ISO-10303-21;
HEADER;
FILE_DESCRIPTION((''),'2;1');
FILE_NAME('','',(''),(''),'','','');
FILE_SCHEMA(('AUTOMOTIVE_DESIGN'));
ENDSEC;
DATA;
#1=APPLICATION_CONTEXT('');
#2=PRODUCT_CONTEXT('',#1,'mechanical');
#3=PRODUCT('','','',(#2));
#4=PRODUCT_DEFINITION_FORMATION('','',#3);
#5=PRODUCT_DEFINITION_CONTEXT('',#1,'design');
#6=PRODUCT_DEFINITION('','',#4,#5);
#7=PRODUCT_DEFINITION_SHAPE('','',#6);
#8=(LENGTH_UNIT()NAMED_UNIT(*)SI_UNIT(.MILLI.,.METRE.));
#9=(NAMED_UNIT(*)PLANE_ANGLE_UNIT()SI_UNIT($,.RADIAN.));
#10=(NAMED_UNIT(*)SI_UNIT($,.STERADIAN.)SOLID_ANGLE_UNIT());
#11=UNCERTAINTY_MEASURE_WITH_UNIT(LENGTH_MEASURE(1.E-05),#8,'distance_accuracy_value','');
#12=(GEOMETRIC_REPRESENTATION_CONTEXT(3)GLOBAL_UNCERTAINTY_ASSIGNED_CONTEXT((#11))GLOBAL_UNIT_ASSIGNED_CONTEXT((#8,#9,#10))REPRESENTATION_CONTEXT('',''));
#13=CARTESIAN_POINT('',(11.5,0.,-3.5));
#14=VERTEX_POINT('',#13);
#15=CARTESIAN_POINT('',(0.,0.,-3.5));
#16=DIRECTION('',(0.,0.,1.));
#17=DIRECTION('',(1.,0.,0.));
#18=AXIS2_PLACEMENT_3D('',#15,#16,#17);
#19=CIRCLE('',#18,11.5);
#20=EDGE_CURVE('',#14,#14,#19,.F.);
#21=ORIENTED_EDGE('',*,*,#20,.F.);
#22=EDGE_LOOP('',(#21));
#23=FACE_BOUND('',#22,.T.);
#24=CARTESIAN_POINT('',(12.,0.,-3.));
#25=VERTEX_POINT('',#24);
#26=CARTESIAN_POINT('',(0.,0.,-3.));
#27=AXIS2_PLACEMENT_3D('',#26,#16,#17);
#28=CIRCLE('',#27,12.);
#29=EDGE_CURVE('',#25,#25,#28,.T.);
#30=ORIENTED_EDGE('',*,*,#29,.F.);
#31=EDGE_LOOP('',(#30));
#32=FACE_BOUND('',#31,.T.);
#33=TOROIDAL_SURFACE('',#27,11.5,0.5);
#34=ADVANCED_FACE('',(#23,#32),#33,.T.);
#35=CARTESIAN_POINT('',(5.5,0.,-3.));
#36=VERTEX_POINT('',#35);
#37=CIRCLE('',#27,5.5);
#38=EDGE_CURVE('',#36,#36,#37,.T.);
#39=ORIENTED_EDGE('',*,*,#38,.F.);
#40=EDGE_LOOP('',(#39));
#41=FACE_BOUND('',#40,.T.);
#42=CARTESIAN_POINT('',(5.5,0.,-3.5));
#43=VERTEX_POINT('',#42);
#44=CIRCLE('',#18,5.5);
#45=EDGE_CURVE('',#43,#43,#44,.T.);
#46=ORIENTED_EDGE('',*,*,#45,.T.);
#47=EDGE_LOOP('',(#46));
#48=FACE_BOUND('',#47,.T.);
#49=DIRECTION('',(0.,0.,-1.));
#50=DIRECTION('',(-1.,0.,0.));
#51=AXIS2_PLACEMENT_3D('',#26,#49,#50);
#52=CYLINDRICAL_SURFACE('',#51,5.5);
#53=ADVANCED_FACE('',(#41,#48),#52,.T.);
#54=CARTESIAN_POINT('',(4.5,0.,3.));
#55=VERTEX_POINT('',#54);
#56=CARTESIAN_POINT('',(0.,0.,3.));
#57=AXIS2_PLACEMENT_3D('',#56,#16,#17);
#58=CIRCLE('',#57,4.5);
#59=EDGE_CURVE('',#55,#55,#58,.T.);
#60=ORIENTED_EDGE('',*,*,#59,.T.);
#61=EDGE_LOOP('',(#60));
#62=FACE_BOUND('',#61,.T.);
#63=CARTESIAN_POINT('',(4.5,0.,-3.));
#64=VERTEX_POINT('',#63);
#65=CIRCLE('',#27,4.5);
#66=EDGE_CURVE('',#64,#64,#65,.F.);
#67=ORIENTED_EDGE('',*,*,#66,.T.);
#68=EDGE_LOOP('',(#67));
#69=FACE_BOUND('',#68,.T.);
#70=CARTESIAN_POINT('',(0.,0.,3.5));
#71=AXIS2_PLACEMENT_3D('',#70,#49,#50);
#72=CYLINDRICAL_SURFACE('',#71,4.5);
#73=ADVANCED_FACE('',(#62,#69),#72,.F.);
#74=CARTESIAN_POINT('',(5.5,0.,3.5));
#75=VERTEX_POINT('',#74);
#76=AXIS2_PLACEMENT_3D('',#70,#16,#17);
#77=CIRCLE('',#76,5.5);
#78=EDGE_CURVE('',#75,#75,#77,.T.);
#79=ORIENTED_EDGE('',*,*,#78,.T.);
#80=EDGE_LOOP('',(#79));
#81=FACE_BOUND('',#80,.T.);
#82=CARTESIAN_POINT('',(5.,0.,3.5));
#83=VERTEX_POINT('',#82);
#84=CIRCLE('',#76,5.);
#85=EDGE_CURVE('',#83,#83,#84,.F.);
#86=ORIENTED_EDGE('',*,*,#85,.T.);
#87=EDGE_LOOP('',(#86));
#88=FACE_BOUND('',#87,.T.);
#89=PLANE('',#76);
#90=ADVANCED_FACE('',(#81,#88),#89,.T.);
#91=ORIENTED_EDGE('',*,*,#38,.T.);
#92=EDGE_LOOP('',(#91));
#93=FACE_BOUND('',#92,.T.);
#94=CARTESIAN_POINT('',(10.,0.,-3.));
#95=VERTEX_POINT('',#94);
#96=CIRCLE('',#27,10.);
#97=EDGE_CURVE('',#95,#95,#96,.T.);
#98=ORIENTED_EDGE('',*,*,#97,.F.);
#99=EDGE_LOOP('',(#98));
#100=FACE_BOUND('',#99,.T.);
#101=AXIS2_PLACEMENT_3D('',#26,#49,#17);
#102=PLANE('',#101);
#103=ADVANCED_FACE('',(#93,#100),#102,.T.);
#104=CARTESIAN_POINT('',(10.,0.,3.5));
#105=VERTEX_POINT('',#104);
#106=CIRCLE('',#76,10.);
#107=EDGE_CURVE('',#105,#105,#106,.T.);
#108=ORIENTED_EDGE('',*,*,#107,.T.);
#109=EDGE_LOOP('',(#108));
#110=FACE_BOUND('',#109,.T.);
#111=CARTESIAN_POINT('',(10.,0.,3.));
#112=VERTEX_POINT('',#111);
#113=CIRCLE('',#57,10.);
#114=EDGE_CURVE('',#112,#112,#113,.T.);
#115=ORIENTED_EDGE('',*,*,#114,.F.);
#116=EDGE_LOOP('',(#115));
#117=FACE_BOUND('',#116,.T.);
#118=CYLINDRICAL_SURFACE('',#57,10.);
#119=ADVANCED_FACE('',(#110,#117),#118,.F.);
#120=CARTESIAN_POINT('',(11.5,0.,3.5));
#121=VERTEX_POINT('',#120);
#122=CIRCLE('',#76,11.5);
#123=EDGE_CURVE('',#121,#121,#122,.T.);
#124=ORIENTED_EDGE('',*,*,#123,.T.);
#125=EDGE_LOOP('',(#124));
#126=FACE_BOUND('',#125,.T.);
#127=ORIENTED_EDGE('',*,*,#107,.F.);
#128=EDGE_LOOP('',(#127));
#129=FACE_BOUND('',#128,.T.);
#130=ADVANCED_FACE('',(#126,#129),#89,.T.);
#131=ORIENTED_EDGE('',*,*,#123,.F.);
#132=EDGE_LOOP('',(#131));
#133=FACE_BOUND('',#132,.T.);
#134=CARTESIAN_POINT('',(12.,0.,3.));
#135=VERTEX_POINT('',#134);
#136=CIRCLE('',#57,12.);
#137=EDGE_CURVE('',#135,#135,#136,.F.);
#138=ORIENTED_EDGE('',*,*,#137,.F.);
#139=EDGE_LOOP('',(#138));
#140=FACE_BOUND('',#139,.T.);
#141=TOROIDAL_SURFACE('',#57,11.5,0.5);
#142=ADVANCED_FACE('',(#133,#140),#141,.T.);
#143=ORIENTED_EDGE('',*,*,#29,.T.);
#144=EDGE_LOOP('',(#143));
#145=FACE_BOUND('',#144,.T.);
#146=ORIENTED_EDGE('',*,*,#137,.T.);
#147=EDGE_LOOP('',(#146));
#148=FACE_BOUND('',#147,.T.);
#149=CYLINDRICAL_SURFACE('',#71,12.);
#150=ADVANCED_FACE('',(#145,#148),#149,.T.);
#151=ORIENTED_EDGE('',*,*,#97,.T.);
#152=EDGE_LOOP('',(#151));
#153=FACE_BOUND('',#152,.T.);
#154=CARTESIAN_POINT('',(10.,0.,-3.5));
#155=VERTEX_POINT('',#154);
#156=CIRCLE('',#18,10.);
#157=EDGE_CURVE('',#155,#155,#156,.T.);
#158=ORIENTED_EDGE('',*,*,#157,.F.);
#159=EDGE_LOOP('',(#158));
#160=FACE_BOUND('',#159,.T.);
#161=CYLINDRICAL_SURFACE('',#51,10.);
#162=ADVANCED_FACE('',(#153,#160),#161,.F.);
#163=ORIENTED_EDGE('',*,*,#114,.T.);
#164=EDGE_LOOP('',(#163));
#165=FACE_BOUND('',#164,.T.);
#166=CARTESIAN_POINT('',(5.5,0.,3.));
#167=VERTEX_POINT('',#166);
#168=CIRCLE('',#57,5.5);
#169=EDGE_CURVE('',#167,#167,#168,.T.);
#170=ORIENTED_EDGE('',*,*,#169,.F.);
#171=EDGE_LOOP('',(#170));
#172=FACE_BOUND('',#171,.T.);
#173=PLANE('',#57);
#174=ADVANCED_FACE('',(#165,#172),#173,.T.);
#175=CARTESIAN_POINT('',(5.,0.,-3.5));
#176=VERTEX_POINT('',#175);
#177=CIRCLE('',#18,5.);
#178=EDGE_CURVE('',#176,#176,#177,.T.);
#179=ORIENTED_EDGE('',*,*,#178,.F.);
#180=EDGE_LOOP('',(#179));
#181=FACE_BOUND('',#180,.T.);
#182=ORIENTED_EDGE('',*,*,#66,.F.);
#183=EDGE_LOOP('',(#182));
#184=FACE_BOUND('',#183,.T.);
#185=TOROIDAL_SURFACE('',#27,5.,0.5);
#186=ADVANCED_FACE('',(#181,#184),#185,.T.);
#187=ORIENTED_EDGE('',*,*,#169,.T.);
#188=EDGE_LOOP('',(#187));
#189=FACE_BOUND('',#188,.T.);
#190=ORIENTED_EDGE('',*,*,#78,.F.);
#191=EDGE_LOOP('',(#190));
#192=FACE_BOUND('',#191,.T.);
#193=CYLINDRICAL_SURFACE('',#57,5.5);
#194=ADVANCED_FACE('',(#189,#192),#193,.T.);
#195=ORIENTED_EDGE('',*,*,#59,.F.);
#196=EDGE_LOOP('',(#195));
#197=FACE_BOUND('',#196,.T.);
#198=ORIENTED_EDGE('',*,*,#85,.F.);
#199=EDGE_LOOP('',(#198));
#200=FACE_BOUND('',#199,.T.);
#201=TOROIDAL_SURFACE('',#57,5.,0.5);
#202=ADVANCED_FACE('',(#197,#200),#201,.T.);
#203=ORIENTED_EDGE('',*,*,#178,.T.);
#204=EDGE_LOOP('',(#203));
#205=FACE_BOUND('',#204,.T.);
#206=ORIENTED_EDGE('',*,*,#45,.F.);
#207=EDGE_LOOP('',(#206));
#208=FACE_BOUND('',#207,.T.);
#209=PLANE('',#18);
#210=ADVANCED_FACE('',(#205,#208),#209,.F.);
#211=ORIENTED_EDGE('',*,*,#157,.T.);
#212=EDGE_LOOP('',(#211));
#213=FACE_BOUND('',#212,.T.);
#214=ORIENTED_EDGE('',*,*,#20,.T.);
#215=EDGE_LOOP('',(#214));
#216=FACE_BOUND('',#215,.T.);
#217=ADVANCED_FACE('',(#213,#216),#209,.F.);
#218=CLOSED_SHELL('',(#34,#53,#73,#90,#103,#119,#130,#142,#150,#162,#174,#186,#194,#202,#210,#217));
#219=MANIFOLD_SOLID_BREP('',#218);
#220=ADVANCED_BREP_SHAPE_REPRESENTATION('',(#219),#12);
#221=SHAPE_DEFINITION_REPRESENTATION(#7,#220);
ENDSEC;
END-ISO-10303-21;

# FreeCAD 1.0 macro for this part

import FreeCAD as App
import Part
import Sketcher
from FreeCAD import Vector
Q = App.Units.Quantity


def edges_at(feature, points):
    """Names of the edges that pass closest to the given points."""
    edges = feature.Shape.Edges
    near = lambda p: min(range(len(edges)), key=lambda i: edges[i].distToShape(Part.Vertex(*p))[0])
    return sorted({f"Edge{near(p) + 1}" for p in points})

doc = App.newDocument("Part")
body = doc.addObject("PartDesign::Body", "Body")

sketch1 = body.newObject("Sketcher::SketchObject", "Sketch")
sketch1.AttachmentSupport = (doc.getObject("XY_Plane"), [""])
sketch1.MapMode = "FlatFace"
sketch1.addGeometry(Part.Circle(Vector(0, 0, 0), Vector(0, 0, 1), 12), False)
sketch1.addGeometry(Part.Circle(Vector(0, 0, 0), Vector(0, 0, 1), 4.5), False)
sketch1.addConstraint(Sketcher.Constraint("Coincident", 0, 3, -1, 1))
sketch1.addConstraint(Sketcher.Constraint("Coincident", 1, 3, -1, 1))
sketch1.addConstraint(Sketcher.Constraint("Diameter", 0, Q("24 mm")))
sketch1.addConstraint(Sketcher.Constraint("Diameter", 1, Q("9 mm")))
pad1 = body.newObject("PartDesign::Pad", "Pad")
pad1.Profile = sketch1
pad1.Length = 7
pad1.Midplane = True
doc.recompute()

fillet = body.newObject("PartDesign::Fillet", "Fillet")
fillet.Base = (pad1, edges_at(pad1, [
    (-12, 0, -3.5),
    (-12, 0, 3.5),
    (-4.5, 0, -3.5),
    (-4.5, 0, 3.5),
]))
fillet.Radius = 0.5

sketch2 = body.newObject("Sketcher::SketchObject", "Sketch001")
sketch2.AttachmentSupport = (doc.getObject("XY_Plane"), [""])
sketch2.MapMode = "FlatFace"
sketch2.AttachmentOffset = App.Placement(Vector(0, 0, 3.5), App.Rotation())
sketch2.addGeometry(Part.Circle(Vector(0, 0, 0), Vector(0, 0, 1), 10), False)
sketch2.addGeometry(Part.Circle(Vector(0, 0, 0), Vector(0, 0, 1), 5.5), False)
sketch2.addConstraint(Sketcher.Constraint("Coincident", 0, 3, -1, 1))
sketch2.addConstraint(Sketcher.Constraint("Coincident", 1, 3, -1, 1))
sketch2.addConstraint(Sketcher.Constraint("Diameter", 0, Q("20 mm")))
sketch2.addConstraint(Sketcher.Constraint("Diameter", 1, Q("11 mm")))
pocket1 = body.newObject("PartDesign::Pocket", "Pocket")
pocket1.Profile = sketch2
pocket1.Length = 0.5
doc.recompute()

mirrored = body.newObject("PartDesign::Mirrored", "Mirrored")
mirrored.Originals = [pocket1]
mirrored.MirrorPlane = (doc.getObject("XY_Plane"), [""])
body.Tip = mirrored

doc.recompute()
